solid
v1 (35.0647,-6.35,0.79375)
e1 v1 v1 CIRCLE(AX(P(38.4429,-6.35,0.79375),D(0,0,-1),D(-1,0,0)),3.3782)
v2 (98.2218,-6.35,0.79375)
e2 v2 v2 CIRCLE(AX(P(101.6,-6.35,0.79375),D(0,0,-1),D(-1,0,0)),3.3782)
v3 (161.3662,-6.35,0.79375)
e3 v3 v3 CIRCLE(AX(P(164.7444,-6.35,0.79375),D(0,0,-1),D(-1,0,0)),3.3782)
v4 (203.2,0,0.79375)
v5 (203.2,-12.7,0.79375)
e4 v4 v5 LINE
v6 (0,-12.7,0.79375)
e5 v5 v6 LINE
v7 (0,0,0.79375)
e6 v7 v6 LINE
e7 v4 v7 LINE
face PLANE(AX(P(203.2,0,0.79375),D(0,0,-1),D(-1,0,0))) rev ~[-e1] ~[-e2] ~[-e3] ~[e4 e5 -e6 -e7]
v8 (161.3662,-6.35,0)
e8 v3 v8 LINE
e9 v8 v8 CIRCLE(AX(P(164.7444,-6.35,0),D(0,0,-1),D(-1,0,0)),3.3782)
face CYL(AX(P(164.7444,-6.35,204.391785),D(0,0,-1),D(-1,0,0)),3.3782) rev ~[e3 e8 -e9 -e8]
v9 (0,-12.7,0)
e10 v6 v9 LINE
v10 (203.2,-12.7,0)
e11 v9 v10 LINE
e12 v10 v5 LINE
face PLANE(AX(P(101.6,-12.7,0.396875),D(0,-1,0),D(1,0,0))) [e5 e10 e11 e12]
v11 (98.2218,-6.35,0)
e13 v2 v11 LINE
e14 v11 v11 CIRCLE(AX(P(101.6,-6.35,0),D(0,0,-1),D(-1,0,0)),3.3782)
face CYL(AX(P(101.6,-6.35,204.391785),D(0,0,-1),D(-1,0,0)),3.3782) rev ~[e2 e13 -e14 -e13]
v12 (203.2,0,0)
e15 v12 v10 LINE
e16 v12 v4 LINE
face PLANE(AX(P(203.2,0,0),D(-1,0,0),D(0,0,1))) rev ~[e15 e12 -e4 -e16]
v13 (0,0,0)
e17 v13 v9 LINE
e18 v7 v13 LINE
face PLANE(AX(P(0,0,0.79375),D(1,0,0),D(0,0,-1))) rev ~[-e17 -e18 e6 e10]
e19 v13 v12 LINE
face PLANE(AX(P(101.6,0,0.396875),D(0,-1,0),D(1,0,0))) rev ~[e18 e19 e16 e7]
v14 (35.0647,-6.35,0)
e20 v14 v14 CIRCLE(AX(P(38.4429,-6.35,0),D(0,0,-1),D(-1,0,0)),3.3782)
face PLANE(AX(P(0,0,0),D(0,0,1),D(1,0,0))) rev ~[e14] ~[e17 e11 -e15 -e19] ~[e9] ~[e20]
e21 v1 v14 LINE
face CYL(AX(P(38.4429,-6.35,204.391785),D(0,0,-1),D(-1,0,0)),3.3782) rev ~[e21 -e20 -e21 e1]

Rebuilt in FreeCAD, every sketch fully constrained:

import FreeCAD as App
import Part
import Sketcher
from FreeCAD import Vector
Q = App.Units.Quantity

doc = App.newDocument("Part")
body = doc.addObject("PartDesign::Body", "Body")

# Sketch on XZ plane
sketch1 = body.newObject("Sketcher::SketchObject", "Sketch")
sketch1.AttachmentSupport = (doc.getObject("XZ_Plane"), [""])
sketch1.MapMode = "FlatFace"
sketch1.addGeometry([
    Part.LineSegment(Vector(0, 0.79375, 0), Vector(0, 0, 0)),
    Part.LineSegment(Vector(0, 0, 0), Vector(203.2, 0, 0)),
    Part.LineSegment(Vector(203.2, 0, 0), Vector(203.2, 0.79375, 0)),
    Part.LineSegment(Vector(203.2, 0.79375, 0), Vector(0, 0.79375, 0)),
], False)
sketch1.addConstraint([
    Sketcher.Constraint("Coincident", 0, 2, 1, 1),
    Sketcher.Constraint("Coincident", 1, 2, 2, 1),
    Sketcher.Constraint("Coincident", 2, 2, 3, 1),
    Sketcher.Constraint("Coincident", 3, 2, 0, 1),
    Sketcher.Constraint("Vertical", 0),
    Sketcher.Constraint("Horizontal", 1),
    Sketcher.Constraint("Vertical", 2),
    Sketcher.Constraint("Horizontal", 3),
    Sketcher.Constraint("Coincident", 0, 2, -1, 1),
    Sketcher.Constraint("DistanceX", 1, 1, 1, 2, Q("8 in")),
    Sketcher.Constraint("DistanceY", 0, 2, 0, 1, Q("0.03125 in")),
])
pad1 = body.newObject("PartDesign::Pad", "Pad")
pad1.Profile = sketch1
pad1.Length = Q("0.5 in")

# Sketch on XY plane
sketch2 = body.newObject("Sketcher::SketchObject", "Sketch001")
sketch2.AttachmentSupport = (doc.getObject("XY_Plane"), [""])
sketch2.MapMode = "FlatFace"
sketch2.AttachmentOffset = App.Placement(Vector(0, 0, 0.03125 * 25.4), App.Rotation())
sketch2.addGeometry([
    Part.Circle(Vector(101.6, -6.35, 0), Vector(0, 0, 1), 3.3782),
    Part.Circle(Vector(38.4429, -6.35, 0), Vector(0, 0, 1), 3.3782),
    Part.Circle(Vector(164.7444, -6.35, 0), Vector(0, 0, 1), 3.3782),
], False)
sketch2.addConstraint([
    Sketcher.Constraint("Equal", 0, 1),
    Sketcher.Constraint("Equal", 1, 2),
    Sketcher.Constraint("Horizontal", 0, 3, 1, 3),
    Sketcher.Constraint("Horizontal", 1, 3, 2, 3),
    Sketcher.Constraint("Diameter", 0, Q("0.266 in")),
    Sketcher.Constraint("DistanceX", -1, 1, 0, 3, Q("4 in")),
    Sketcher.Constraint("DistanceY", 0, 3, -1, 1, Q("0.25 in")),
    Sketcher.Constraint("DistanceX", -1, 1, 2, 3, Q("6.486 in")),
    Sketcher.Constraint("DistanceX", -1, 1, 1, 3, Q("1.5135 in")),
])
doc.recompute()
hole = body.newObject("PartDesign::Hole", "Hole")
hole.Profile = sketch2
hole.ThreadType = "None"
hole.Diameter = Q("0.266 in")
hole.DepthType = "ThroughAll"

doc.recompute()
